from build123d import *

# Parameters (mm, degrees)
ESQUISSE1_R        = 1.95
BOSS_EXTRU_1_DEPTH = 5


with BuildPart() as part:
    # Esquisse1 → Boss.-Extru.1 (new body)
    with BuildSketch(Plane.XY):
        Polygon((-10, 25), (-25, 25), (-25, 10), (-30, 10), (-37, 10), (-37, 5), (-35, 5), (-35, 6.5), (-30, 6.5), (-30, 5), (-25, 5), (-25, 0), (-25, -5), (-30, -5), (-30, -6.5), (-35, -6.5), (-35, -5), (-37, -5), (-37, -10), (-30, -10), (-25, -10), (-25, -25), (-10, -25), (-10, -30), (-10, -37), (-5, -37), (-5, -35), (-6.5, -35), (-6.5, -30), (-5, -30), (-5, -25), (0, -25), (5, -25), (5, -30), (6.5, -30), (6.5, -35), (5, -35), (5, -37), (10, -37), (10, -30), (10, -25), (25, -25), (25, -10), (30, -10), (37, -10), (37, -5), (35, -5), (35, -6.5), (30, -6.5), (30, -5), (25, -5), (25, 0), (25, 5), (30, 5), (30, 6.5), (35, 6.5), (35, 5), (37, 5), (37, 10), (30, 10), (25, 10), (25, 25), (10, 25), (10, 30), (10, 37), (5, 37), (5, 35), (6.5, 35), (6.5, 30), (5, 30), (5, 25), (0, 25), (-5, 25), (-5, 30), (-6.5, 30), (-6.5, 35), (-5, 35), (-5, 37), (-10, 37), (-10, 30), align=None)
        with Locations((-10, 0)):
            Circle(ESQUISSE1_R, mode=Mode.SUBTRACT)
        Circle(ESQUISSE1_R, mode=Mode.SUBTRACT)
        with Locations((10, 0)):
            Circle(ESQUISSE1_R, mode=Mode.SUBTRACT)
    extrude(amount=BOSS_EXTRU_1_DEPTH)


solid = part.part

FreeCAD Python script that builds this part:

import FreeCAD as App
import Part
import Sketcher

V = App.Vector
Q = App.Units.Quantity

doc = App.newDocument("Part")
body = doc.addObject("PartDesign::Body", "Body")

# Sketch on XY plane
sketch1 = body.newObject("Sketcher::SketchObject", "Sketch")
sketch1.AttachmentSupport = (doc.getObject("XY_Plane"), [""])
sketch1.MapMode = "FlatFace"
sketch1.addGeometry([
    Part.LineSegment(V(-10, 25, 0), V(-25, 25, 0)),  # 0
    Part.LineSegment(V(-25, 25, 0), V(-25, 10, 0)),  # 1
    Part.LineSegment(V(-25, 10, 0), V(-37, 10, 0)),  # 2
    Part.LineSegment(V(-37, 10, 0), V(-37, 5, 0)),  # 3
    Part.LineSegment(V(-37, 5, 0), V(-35, 5, 0)),  # 4
    Part.LineSegment(V(-35, 5, 0), V(-35, 6.5, 0)),  # 5
    Part.LineSegment(V(-35, 6.5, 0), V(-30, 6.5, 0)),  # 6
    Part.LineSegment(V(-30, 6.5, 0), V(-30, 5, 0)),  # 7
    Part.LineSegment(V(-30, 5, 0), V(-25, 5, 0)),  # 8
    Part.LineSegment(V(-25, 5, 0), V(-25, -5, 0)),  # 9
    Part.LineSegment(V(-25, -5, 0), V(-30, -5, 0)),  # 10
    Part.LineSegment(V(-30, -5, 0), V(-30, -6.5, 0)),  # 11
    Part.LineSegment(V(-30, -6.5, 0), V(-35, -6.5, 0)),  # 12
    Part.LineSegment(V(-35, -6.5, 0), V(-35, -5, 0)),  # 13
    Part.LineSegment(V(-35, -5, 0), V(-37, -5, 0)),  # 14
    Part.LineSegment(V(-37, -5, 0), V(-37, -10, 0)),  # 15
    Part.LineSegment(V(-37, -10, 0), V(-25, -10, 0)),  # 16
    Part.LineSegment(V(-25, -10, 0), V(-25, -25, 0)),  # 17
    Part.LineSegment(V(-25, -25, 0), V(-10, -25, 0)),  # 18
    Part.LineSegment(V(-10, -25, 0), V(-10, -37, 0)),  # 19
    Part.LineSegment(V(-10, -37, 0), V(-5, -37, 0)),  # 20
    Part.LineSegment(V(-5, -37, 0), V(-5, -35, 0)),  # 21
    Part.LineSegment(V(-5, -35, 0), V(-6.5, -35, 0)),  # 22
    Part.LineSegment(V(-6.5, -35, 0), V(-6.5, -30, 0)),  # 23
    Part.LineSegment(V(-6.5, -30, 0), V(-5, -30, 0)),  # 24
    Part.LineSegment(V(-5, -30, 0), V(-5, -25, 0)),  # 25
    Part.LineSegment(V(-5, -25, 0), V(5, -25, 0)),  # 26
    Part.LineSegment(V(5, -25, 0), V(5, -30, 0)),  # 27
    Part.LineSegment(V(5, -30, 0), V(6.5, -30, 0)),  # 28
    Part.LineSegment(V(6.5, -30, 0), V(6.5, -35, 0)),  # 29
    Part.LineSegment(V(6.5, -35, 0), V(5, -35, 0)),  # 30
    Part.LineSegment(V(5, -35, 0), V(5, -37, 0)),  # 31
    Part.LineSegment(V(5, -37, 0), V(10, -37, 0)),  # 32
    Part.LineSegment(V(10, -37, 0), V(10, -25, 0)),  # 33
    Part.LineSegment(V(10, -25, 0), V(25, -25, 0)),  # 34
    Part.LineSegment(V(25, -25, 0), V(25, -10, 0)),  # 35
    Part.LineSegment(V(25, -10, 0), V(37, -10, 0)),  # 36
    Part.LineSegment(V(37, -10, 0), V(37, -5, 0)),  # 37
    Part.LineSegment(V(37, -5, 0), V(35, -5, 0)),  # 38
    Part.LineSegment(V(35, -5, 0), V(35, -6.5, 0)),  # 39
    Part.LineSegment(V(35, -6.5, 0), V(30, -6.5, 0)),  # 40
    Part.LineSegment(V(30, -6.5, 0), V(30, -5, 0)),  # 41
    Part.LineSegment(V(30, -5, 0), V(25, -5, 0)),  # 42
    Part.LineSegment(V(25, -5, 0), V(25, 5, 0)),  # 43
    Part.LineSegment(V(25, 5, 0), V(30, 5, 0)),  # 44
    Part.LineSegment(V(30, 5, 0), V(30, 6.5, 0)),  # 45
    Part.LineSegment(V(30, 6.5, 0), V(35, 6.5, 0)),  # 46
    Part.LineSegment(V(35, 6.5, 0), V(35, 5, 0)),  # 47
    Part.LineSegment(V(35, 5, 0), V(37, 5, 0)),  # 48
    Part.LineSegment(V(37, 5, 0), V(37, 10, 0)),  # 49
    Part.LineSegment(V(37, 10, 0), V(25, 10, 0)),  # 50
    Part.LineSegment(V(25, 10, 0), V(25, 25, 0)),  # 51
    Part.LineSegment(V(25, 25, 0), V(10, 25, 0)),  # 52
    Part.LineSegment(V(10, 25, 0), V(10, 37, 0)),  # 53
    Part.LineSegment(V(10, 37, 0), V(5, 37, 0)),  # 54
    Part.LineSegment(V(5, 37, 0), V(5, 35, 0)),  # 55
    Part.LineSegment(V(5, 35, 0), V(6.5, 35, 0)),  # 56
    Part.LineSegment(V(6.5, 35, 0), V(6.5, 30, 0)),  # 57
    Part.LineSegment(V(6.5, 30, 0), V(5, 30, 0)),  # 58
    Part.LineSegment(V(5, 30, 0), V(5, 25, 0)),  # 59
    Part.LineSegment(V(5, 25, 0), V(-5, 25, 0)),  # 60
    Part.LineSegment(V(-5, 25, 0), V(-5, 30, 0)),  # 61
    Part.LineSegment(V(-5, 30, 0), V(-6.5, 30, 0)),  # 62
    Part.LineSegment(V(-6.5, 30, 0), V(-6.5, 35, 0)),  # 63
    Part.LineSegment(V(-6.5, 35, 0), V(-5, 35, 0)),  # 64
    Part.LineSegment(V(-5, 35, 0), V(-5, 37, 0)),  # 65
    Part.LineSegment(V(-5, 37, 0), V(-10, 37, 0)),  # 66
    Part.LineSegment(V(-10, 37, 0), V(-10, 25, 0)),  # 67
    Part.Circle(V(-10, 0, 0), V(0, 0, 1), 1.9),  # 68
    Part.Circle(V(0, 0, 0), V(0, 0, 1), 1.9),  # 69
    Part.Circle(V(10, 0, 0), V(0, 0, 1), 1.9),  # 70
], False)
sketch1.addConstraint([
    Sketcher.Constraint("Coincident", 0, 2, 1, 1),
    Sketcher.Constraint("Coincident", 1, 2, 2, 1),
    Sketcher.Constraint("Coincident", 2, 2, 3, 1),
    Sketcher.Constraint("Coincident", 3, 2, 4, 1),
    Sketcher.Constraint("Coincident", 4, 2, 5, 1),
    Sketcher.Constraint("Coincident", 5, 2, 6, 1),
    Sketcher.Constraint("Coincident", 6, 2, 7, 1),
    Sketcher.Constraint("Coincident", 7, 2, 8, 1),
    Sketcher.Constraint("Coincident", 8, 2, 9, 1),
    Sketcher.Constraint("Coincident", 9, 2, 10, 1),
    Sketcher.Constraint("Coincident", 10, 2, 11, 1),
    Sketcher.Constraint("Coincident", 11, 2, 12, 1),
    Sketcher.Constraint("Coincident", 12, 2, 13, 1),
    Sketcher.Constraint("Coincident", 13, 2, 14, 1),
    Sketcher.Constraint("Coincident", 14, 2, 15, 1),
    Sketcher.Constraint("Coincident", 15, 2, 16, 1),
    Sketcher.Constraint("Coincident", 16, 2, 17, 1),
    Sketcher.Constraint("Coincident", 17, 2, 18, 1),
    Sketcher.Constraint("Coincident", 18, 2, 19, 1),
    Sketcher.Constraint("Coincident", 19, 2, 20, 1),
    Sketcher.Constraint("Coincident", 20, 2, 21, 1),
    Sketcher.Constraint("Coincident", 21, 2, 22, 1),
    Sketcher.Constraint("Coincident", 22, 2, 23, 1),
    Sketcher.Constraint("Coincident", 23, 2, 24, 1),
    Sketcher.Constraint("Coincident", 24, 2, 25, 1),
    Sketcher.Constraint("Coincident", 25, 2, 26, 1),
    Sketcher.Constraint("Coincident", 26, 2, 27, 1),
    Sketcher.Constraint("Coincident", 27, 2, 28, 1),
    Sketcher.Constraint("Coincident", 28, 2, 29, 1),
    Sketcher.Constraint("Coincident", 29, 2, 30, 1),
    Sketcher.Constraint("Coincident", 30, 2, 31, 1),
    Sketcher.Constraint("Coincident", 31, 2, 32, 1),
    Sketcher.Constraint("Coincident", 32, 2, 33, 1),
    Sketcher.Constraint("Coincident", 33, 2, 34, 1),
    Sketcher.Constraint("Coincident", 34, 2, 35, 1),
    Sketcher.Constraint("Coincident", 35, 2, 36, 1),
    Sketcher.Constraint("Coincident", 36, 2, 37, 1),
    Sketcher.Constraint("Coincident", 37, 2, 38, 1),
    Sketcher.Constraint("Coincident", 38, 2, 39, 1),
    Sketcher.Constraint("Coincident", 39, 2, 40, 1),
    Sketcher.Constraint("Coincident", 40, 2, 41, 1),
    Sketcher.Constraint("Coincident", 41, 2, 42, 1),
    Sketcher.Constraint("Coincident", 42, 2, 43, 1),
    Sketcher.Constraint("Coincident", 43, 2, 44, 1),
    Sketcher.Constraint("Coincident", 44, 2, 45, 1),
    Sketcher.Constraint("Coincident", 45, 2, 46, 1),
    Sketcher.Constraint("Coincident", 46, 2, 47, 1),
    Sketcher.Constraint("Coincident", 47, 2, 48, 1),
    Sketcher.Constraint("Coincident", 48, 2, 49, 1),
    Sketcher.Constraint("Coincident", 49, 2, 50, 1),
    Sketcher.Constraint("Coincident", 50, 2, 51, 1),
    Sketcher.Constraint("Coincident", 51, 2, 52, 1),
    Sketcher.Constraint("Coincident", 52, 2, 53, 1),
    Sketcher.Constraint("Coincident", 53, 2, 54, 1),
    Sketcher.Constraint("Coincident", 54, 2, 55, 1),
    Sketcher.Constraint("Coincident", 55, 2, 56, 1),
    Sketcher.Constraint("Coincident", 56, 2, 57, 1),
    Sketcher.Constraint("Coincident", 57, 2, 58, 1),
    Sketcher.Constraint("Coincident", 58, 2, 59, 1),
    Sketcher.Constraint("Coincident", 59, 2, 60, 1),
    Sketcher.Constraint("Coincident", 60, 2, 61, 1),
    Sketcher.Constraint("Coincident", 61, 2, 62, 1),
    Sketcher.Constraint("Coincident", 62, 2, 63, 1),
    Sketcher.Constraint("Coincident", 63, 2, 64, 1),
    Sketcher.Constraint("Coincident", 64, 2, 65, 1),
    Sketcher.Constraint("Coincident", 65, 2, 66, 1),
    Sketcher.Constraint("Coincident", 66, 2, 67, 1),
    Sketcher.Constraint("Coincident", 67, 2, 0, 1),
    Sketcher.Constraint("Horizontal", 0),
    Sketcher.Constraint("Vertical", 1),
    Sketcher.Constraint("Horizontal", 2),
    Sketcher.Constraint("Vertical", 3),
    Sketcher.Constraint("Horizontal", 4),
    Sketcher.Constraint("Vertical", 5),
    Sketcher.Constraint("Horizontal", 6),
    Sketcher.Constraint("Vertical", 7),
    Sketcher.Constraint("Horizontal", 8),
    Sketcher.Constraint("Vertical", 9),
    Sketcher.Constraint("Horizontal", 10),
    Sketcher.Constraint("Vertical", 11),
    Sketcher.Constraint("Horizontal", 12),
    Sketcher.Constraint("Vertical", 13),
    Sketcher.Constraint("Horizontal", 14),
    Sketcher.Constraint("Vertical", 15),
    Sketcher.Constraint("Horizontal", 16),
    Sketcher.Constraint("Vertical", 17),
    Sketcher.Constraint("Horizontal", 18),
    Sketcher.Constraint("Vertical", 19),
    Sketcher.Constraint("Horizontal", 20),
    Sketcher.Constraint("Vertical", 21),
    Sketcher.Constraint("Horizontal", 22),
    Sketcher.Constraint("Vertical", 23),
    Sketcher.Constraint("Horizontal", 24),
    Sketcher.Constraint("Vertical", 25),
    Sketcher.Constraint("Horizontal", 26),
    Sketcher.Constraint("Vertical", 27),
    Sketcher.Constraint("Horizontal", 28),
    Sketcher.Constraint("Vertical", 29),
    Sketcher.Constraint("Horizontal", 30),
    Sketcher.Constraint("Vertical", 31),
    Sketcher.Constraint("Horizontal", 32),
    Sketcher.Constraint("Vertical", 33),
    Sketcher.Constraint("Horizontal", 34),
    Sketcher.Constraint("Vertical", 35),
    Sketcher.Constraint("Horizontal", 36),
    Sketcher.Constraint("Vertical", 37),
    Sketcher.Constraint("Horizontal", 38),
    Sketcher.Constraint("Vertical", 39),
    Sketcher.Constraint("Horizontal", 40),
    Sketcher.Constraint("Vertical", 41),
    Sketcher.Constraint("Horizontal", 42),
    Sketcher.Constraint("Vertical", 43),
    Sketcher.Constraint("Horizontal", 44),
    Sketcher.Constraint("Vertical", 45),
    Sketcher.Constraint("Horizontal", 46),
    Sketcher.Constraint("Vertical", 47),
    Sketcher.Constraint("Horizontal", 48),
    Sketcher.Constraint("Vertical", 49),
    Sketcher.Constraint("Horizontal", 50),
    Sketcher.Constraint("Vertical", 51),
    Sketcher.Constraint("Horizontal", 52),
    Sketcher.Constraint("Vertical", 53),
    Sketcher.Constraint("Horizontal", 54),
    Sketcher.Constraint("Vertical", 55),
    Sketcher.Constraint("Horizontal", 56),
    Sketcher.Constraint("Vertical", 57),
    Sketcher.Constraint("Horizontal", 58),
    Sketcher.Constraint("Vertical", 59),
    Sketcher.Constraint("Horizontal", 60),
    Sketcher.Constraint("Vertical", 61),
    Sketcher.Constraint("Horizontal", 62),
    Sketcher.Constraint("Vertical", 63),
    Sketcher.Constraint("Horizontal", 64),
    Sketcher.Constraint("Vertical", 65),
    Sketcher.Constraint("Horizontal", 66),
    Sketcher.Constraint("Vertical", 67),
    Sketcher.Constraint("Coincident", 69, 3, -1, 1),
    Sketcher.Constraint("Equal", 68, 69),
    Sketcher.Constraint("Equal", 69, 70),
    Sketcher.Constraint("Symmetric", 68, 3, 70, 3, -1, 1),
    Sketcher.Constraint("Symmetric", 0, 2, 34, 2, -1, 1),
    Sketcher.Constraint("Symmetric", 2, 2, 36, 2, -1, 1),
    Sketcher.Constraint("Symmetric", 4, 2, 38, 2, -1, 1),
    Sketcher.Constraint("Symmetric", 6, 2, 40, 2, -1, 1),
    Sketcher.Constraint("Symmetric", 8, 2, 42, 2, -1, 1),
    Sketcher.Constraint("Symmetric", 10, 2, 44, 2, -1, 1),
    Sketcher.Constraint("Symmetric", 12, 2, 46, 2, -1, 1),
    Sketcher.Constraint("Symmetric", 14, 2, 48, 2, -1, 1),
    Sketcher.Constraint("Symmetric", 16, 2, 50, 2, -1, 1),
    Sketcher.Constraint("Symmetric", 18, 2, 52, 2, -1, 1),
    Sketcher.Constraint("Symmetric", 20, 2, 54, 2, -1, 1),
    Sketcher.Constraint("Symmetric", 22, 2, 56, 2, -1, 1),
    Sketcher.Constraint("Symmetric", 24, 2, 58, 2, -1, 1),
    Sketcher.Constraint("Symmetric", 26, 2, 60, 2, -1, 1),
    Sketcher.Constraint("Symmetric", 28, 2, 62, 2, -1, 1),
    Sketcher.Constraint("Symmetric", 30, 2, 64, 2, -1, 1),
    Sketcher.Constraint("Symmetric", 32, 2, 66, 2, -1, 1),
    Sketcher.Constraint("Symmetric", 24, 2, 27, 2, -2),
    Sketcher.Constraint("Symmetric", 22, 2, 29, 2, -2),
    Sketcher.Constraint("Symmetric", 20, 2, 31, 2, -2),
    Sketcher.Constraint("Symmetric", 18, 2, 33, 2, -2),
    Sketcher.Constraint("Symmetric", 16, 2, 35, 2, -2),
    Sketcher.Constraint("Symmetric", 14, 2, 37, 2, -2),
    Sketcher.Constraint("Symmetric", 12, 2, 39, 2, -2),
    Sketcher.Constraint("Symmetric", 10, 2, 41, 2, -2),
    Sketcher.Constraint("PointOnObject", 68, 3, -1),
    Sketcher.Constraint("Horizontal", 4, 2, 7, 2),
    Sketcher.Constraint("Horizontal", 18, 2, 25, 2),
    Sketcher.Constraint("Vertical", 1, 2, 8, 2),
    Sketcher.Constraint("Vertical", 68, 3, 18, 2),
    Sketcher.Constraint("Vertical", 21, 2, 24, 2),
    Sketcher.Constraint("Equal", 6, 8),
    Sketcher.Constraint("Equal", 12, 20),
    Sketcher.Constraint("Equal", 52, 1),
    Sketcher.Constraint("Equal", 66, 3),
    Sketcher.Constraint("Equal", 64, 5),
    Sketcher.Constraint("Equal", 60, 9),
    Sketcher.Constraint("Equal", 50, 19),
    Sketcher.Constraint("Equal", 48, 21),
    Sketcher.Constraint("Equal", 15, 23),
    Sketcher.Constraint("Diameter", 68, Q("3.9 mm")),
    Sketcher.Constraint("DistanceX", 0, 2, 0, 1, Q("15 mm")),
    Sketcher.Constraint("DistanceX", 2, 2, 2, 1, Q("12 mm")),
    Sketcher.Constraint("DistanceX", 4, 1, 4, 2, Q("2 mm")),
    Sketcher.Constraint("DistanceX", 26, 1, 26, 2, Q("10 mm")),
    Sketcher.Constraint("DistanceX", 22, 2, 22, 1, Q("1.5 mm")),
])
pad1 = body.newObject("PartDesign::Pad", "Pad")
pad1.Profile = sketch1
pad1.Length = 5

doc.recompute()
